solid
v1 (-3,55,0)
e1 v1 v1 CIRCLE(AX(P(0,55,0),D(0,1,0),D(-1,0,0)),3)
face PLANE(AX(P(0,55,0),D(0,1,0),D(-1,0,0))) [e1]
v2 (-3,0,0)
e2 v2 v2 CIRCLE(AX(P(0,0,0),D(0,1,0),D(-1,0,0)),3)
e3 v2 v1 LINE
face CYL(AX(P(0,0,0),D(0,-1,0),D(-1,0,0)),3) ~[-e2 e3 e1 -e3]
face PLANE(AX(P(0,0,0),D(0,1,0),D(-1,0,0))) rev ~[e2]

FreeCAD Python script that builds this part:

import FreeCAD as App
import Part
import Sketcher
from FreeCAD import Vector
Q = App.Units.Quantity

doc = App.newDocument("Part")
body = doc.addObject("PartDesign::Body", "Body")

# Sketch on XZ plane
sketch1 = body.newObject("Sketcher::SketchObject", "Sketch")
sketch1.AttachmentSupport = (doc.getObject("XZ_Plane"), [""])
sketch1.MapMode = "FlatFace"
sketch1.addGeometry(Part.Circle(Vector(0, 0, 0), Vector(0, 0, 1), 3), False)
sketch1.addConstraint([
    Sketcher.Constraint("Coincident", 0, 3, -1, 1),
    Sketcher.Constraint("Diameter", 0, Q("6 mm")),
])
pad1 = body.newObject("PartDesign::Pad", "Pad")
pad1.Profile = sketch1
pad1.Length = 55
pad1.Reversed = True

doc.recompute()
